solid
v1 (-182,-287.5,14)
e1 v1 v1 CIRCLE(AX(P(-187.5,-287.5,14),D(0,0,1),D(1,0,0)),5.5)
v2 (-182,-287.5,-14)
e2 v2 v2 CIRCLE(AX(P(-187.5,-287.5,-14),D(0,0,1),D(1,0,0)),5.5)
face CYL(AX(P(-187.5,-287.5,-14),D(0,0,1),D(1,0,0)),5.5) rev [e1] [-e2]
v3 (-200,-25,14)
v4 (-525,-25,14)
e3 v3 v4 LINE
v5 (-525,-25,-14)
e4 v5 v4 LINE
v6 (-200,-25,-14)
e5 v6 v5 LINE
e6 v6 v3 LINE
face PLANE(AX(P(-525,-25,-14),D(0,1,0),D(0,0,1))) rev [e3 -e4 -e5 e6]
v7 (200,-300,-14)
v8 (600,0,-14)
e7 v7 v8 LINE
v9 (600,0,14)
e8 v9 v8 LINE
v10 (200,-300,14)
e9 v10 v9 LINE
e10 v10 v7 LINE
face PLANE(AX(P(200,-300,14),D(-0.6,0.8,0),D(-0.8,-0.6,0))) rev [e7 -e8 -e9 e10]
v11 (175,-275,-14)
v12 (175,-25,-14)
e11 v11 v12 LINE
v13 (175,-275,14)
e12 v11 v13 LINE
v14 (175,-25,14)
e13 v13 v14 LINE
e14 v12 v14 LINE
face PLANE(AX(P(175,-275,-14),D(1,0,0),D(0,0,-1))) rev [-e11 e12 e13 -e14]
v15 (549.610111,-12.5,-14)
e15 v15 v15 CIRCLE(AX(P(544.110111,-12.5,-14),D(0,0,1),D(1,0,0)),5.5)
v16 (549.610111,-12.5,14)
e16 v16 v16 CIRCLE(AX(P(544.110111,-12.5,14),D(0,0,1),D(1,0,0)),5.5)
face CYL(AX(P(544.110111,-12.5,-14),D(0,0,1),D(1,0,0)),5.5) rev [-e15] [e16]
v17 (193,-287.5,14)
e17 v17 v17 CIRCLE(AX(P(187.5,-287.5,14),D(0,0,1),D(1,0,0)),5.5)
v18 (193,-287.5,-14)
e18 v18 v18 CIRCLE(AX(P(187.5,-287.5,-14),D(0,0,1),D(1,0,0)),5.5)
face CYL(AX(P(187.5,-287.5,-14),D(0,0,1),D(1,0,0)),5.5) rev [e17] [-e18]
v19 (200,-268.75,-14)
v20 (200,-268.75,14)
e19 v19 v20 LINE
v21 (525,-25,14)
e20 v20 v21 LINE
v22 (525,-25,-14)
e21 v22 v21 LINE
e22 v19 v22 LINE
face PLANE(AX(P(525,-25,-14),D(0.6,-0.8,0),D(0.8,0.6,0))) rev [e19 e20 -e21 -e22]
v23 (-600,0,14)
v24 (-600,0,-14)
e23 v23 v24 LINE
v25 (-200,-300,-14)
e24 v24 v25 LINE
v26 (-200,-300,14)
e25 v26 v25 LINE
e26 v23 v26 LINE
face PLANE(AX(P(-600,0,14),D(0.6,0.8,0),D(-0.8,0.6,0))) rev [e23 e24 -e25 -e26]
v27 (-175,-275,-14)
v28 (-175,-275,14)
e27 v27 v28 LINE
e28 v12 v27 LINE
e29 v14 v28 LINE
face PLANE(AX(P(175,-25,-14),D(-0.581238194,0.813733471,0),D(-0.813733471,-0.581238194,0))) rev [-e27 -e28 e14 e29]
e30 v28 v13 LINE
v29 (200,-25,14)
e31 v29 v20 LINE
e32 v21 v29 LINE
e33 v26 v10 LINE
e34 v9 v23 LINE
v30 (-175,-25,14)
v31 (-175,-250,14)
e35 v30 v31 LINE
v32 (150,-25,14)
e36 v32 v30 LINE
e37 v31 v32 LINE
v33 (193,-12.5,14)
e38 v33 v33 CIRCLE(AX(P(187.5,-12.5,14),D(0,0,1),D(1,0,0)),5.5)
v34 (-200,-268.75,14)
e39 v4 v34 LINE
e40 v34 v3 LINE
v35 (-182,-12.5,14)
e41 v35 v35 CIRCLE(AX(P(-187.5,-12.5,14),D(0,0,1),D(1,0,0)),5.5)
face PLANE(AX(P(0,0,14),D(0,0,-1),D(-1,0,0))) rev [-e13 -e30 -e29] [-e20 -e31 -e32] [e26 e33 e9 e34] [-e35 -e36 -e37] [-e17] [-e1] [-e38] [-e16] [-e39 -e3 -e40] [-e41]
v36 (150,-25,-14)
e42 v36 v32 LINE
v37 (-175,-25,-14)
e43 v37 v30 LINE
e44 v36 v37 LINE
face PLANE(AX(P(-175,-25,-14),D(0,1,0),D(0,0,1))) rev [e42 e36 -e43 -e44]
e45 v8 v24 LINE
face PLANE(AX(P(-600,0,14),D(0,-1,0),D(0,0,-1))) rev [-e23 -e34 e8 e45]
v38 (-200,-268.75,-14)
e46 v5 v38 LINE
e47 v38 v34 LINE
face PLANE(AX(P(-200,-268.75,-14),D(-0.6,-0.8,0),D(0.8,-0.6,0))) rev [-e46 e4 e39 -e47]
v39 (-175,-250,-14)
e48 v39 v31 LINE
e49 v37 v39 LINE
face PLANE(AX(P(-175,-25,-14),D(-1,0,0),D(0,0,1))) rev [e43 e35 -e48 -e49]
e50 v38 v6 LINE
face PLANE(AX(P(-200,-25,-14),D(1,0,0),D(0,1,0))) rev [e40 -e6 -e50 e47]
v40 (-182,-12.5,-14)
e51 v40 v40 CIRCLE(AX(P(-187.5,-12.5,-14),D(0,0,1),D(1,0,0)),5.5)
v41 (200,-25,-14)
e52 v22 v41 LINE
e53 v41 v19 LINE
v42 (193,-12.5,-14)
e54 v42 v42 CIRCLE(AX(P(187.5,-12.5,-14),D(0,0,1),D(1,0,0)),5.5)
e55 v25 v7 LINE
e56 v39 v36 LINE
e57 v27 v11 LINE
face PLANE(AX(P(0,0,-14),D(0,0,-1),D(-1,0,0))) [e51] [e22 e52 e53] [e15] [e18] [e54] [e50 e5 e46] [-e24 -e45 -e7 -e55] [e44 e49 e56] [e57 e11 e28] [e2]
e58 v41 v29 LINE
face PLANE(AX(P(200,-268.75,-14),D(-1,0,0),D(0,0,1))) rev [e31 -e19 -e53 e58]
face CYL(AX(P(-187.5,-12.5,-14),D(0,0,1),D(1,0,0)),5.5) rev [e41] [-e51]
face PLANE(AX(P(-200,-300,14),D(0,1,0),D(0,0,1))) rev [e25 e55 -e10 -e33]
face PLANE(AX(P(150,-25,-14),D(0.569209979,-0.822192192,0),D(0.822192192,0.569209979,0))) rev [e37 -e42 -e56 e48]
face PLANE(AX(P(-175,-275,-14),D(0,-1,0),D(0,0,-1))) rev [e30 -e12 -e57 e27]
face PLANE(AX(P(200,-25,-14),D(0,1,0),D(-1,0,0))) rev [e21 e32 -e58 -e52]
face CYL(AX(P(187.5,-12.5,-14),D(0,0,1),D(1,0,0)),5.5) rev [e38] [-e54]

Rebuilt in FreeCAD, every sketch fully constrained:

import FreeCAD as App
import Part
import Sketcher
from FreeCAD import Vector
Q = App.Units.Quantity


def add_polygon(sketch, points):
    """Adds a closed chain of lines whose ends are joined by coincident constraints."""
    first, n = sketch.GeometryCount, len(points)
    for a, b in zip(points, points[1:] + points[:1]):
        sketch.addGeometry(Part.LineSegment(App.Vector(*a, 0), App.Vector(*b, 0)), False)
    for i in range(n):
        sketch.addConstraint(Sketcher.Constraint("Coincident", first + i, 2, first + (i + 1) % n, 1))

doc = App.newDocument("Part")
body = doc.addObject("PartDesign::Body", "Body")

# Sketch on XY plane
sketch1 = body.newObject("Sketcher::SketchObject", "Sketch")
sketch1.AttachmentSupport = (doc.getObject("XY_Plane"), [""])
sketch1.MapMode = "FlatFace"
add_polygon(sketch1, [(600, 0), (-600, 0), (-200, -300), (200, -300)])  # lines 0-3
sketch1.addConstraint(Sketcher.Constraint("Horizontal", 0))
sketch1.addConstraint(Sketcher.Constraint("Horizontal", 2))
sketch1.addConstraint(Sketcher.Constraint("Symmetric", 0, 2, 3, 2, -1, 1))
sketch1.addConstraint(Sketcher.Constraint("Equal", 1, 3))
sketch1.addConstraint(Sketcher.Constraint("DistanceX", 0, 2, 0, 1, Q("1200 mm")))
sketch1.addConstraint(Sketcher.Constraint("DistanceX", 2, 1, 2, 2, Q("400 mm")))
sketch1.addConstraint(Sketcher.Constraint("Distance", 1, Q("500 mm")))
pad1 = body.newObject("PartDesign::Pad", "Pad")
pad1.Profile = sketch1
pad1.Length = 28
pad1.Midplane = True

# Sketch on XY plane
sketch2 = body.newObject("Sketcher::SketchObject", "Sketch001")
sketch2.AttachmentSupport = (doc.getObject("XY_Plane"), [""])
sketch2.MapMode = "FlatFace"
sketch2.AttachmentOffset = App.Placement(Vector(0, 0, 14), App.Rotation())
add_polygon(sketch2, [(-175, -275), (175, -275), (175, -25)])  # lines 0-2
add_polygon(sketch2, [(-175, -25), (-175, -250), (150, -25)])  # lines 3-5
sketch2.addConstraint(Sketcher.Constraint("Horizontal", 0))
sketch2.addConstraint(Sketcher.Constraint("Vertical", 1))
sketch2.addConstraint(Sketcher.Constraint("Vertical", 3))
sketch2.addConstraint(Sketcher.Constraint("Horizontal", 5))
sketch2.addConstraint(Sketcher.Constraint("Symmetric", 1, 2, 5, 2, -2))
sketch2.addConstraint(Sketcher.Constraint("Vertical", 2, 2, 3, 2))
sketch2.addConstraint(Sketcher.Constraint("DistanceX", 0, 1, 0, 2, Q("350 mm")))
sketch2.addConstraint(Sketcher.Constraint("DistanceX", 5, 2, 5, 1, Q("325 mm")))
sketch2.addConstraint(Sketcher.Constraint("DistanceY", 1, 1, 1, 2, Q("250 mm")))
sketch2.addConstraint(Sketcher.Constraint("DistanceY", 3, 2, 3, 1, Q("225 mm")))
sketch2.addConstraint(Sketcher.Constraint("DistanceY", 0, 2, -1, 1, Q("275 mm")))
pocket1 = body.newObject("PartDesign::Pocket", "Pocket")
pocket1.Profile = sketch2
pocket1.Length = 28

# Sketch on XY plane
sketch3 = body.newObject("Sketcher::SketchObject", "Sketch002")
sketch3.AttachmentSupport = (doc.getObject("XY_Plane"), [""])
sketch3.MapMode = "FlatFace"
sketch3.AttachmentOffset = App.Placement(Vector(0, 0, 14), App.Rotation())
add_polygon(sketch3, [(-200, -25), (-525, -25), (-200, -269)])  # lines 0-2
sketch3.addConstraint(Sketcher.Constraint("Horizontal", 0))
sketch3.addConstraint(Sketcher.Constraint("Vertical", 2))
sketch3.addConstraint(Sketcher.Constraint("DistanceX", 0, 2, 0, 1, Q("325 mm")))
sketch3.addConstraint(Sketcher.Constraint("DistanceX", 0, 2, -1, 1, Q("525 mm")))
sketch3.addConstraint(Sketcher.Constraint("DistanceY", 0, 2, -1, 1, Q("25 mm")))
sketch3.addConstraint(Sketcher.Constraint("DistanceY", 2, 1, 2, 2, Q("243.75 mm")))
pocket2 = body.newObject("PartDesign::Pocket", "Pocket001")
pocket2.Profile = sketch3
pocket2.Length = 28

# Sketch on XY plane
sketch4 = body.newObject("Sketcher::SketchObject", "Sketch003")
sketch4.AttachmentSupport = (doc.getObject("XY_Plane"), [""])
sketch4.MapMode = "FlatFace"
sketch4.AttachmentOffset = App.Placement(Vector(0, 0, 14), App.Rotation())
add_polygon(sketch4, [(525, -25), (200, -25), (200, -269)])  # lines 0-2
sketch4.addConstraint(Sketcher.Constraint("Horizontal", 0))
sketch4.addConstraint(Sketcher.Constraint("Vertical", 1))
sketch4.addConstraint(Sketcher.Constraint("DistanceX", 0, 2, 0, 1, Q("325 mm")))
sketch4.addConstraint(Sketcher.Constraint("DistanceX", -1, 1, 0, 2, Q("200 mm")))
sketch4.addConstraint(Sketcher.Constraint("DistanceY", 0, 2, -1, 1, Q("25 mm")))
sketch4.addConstraint(Sketcher.Constraint("DistanceY", 1, 2, 1, 1, Q("243.75 mm")))
pocket3 = body.newObject("PartDesign::Pocket", "Pocket002")
pocket3.Profile = sketch4
pocket3.Length = 28

# Sketch on XY plane
sketch5 = body.newObject("Sketcher::SketchObject", "Sketch004")
sketch5.AttachmentSupport = (doc.getObject("XY_Plane"), [""])
sketch5.MapMode = "FlatFace"
sketch5.AttachmentOffset = App.Placement(Vector(0, 0, 14), App.Rotation())
sketch5.addGeometry(Part.Circle(Vector(-188, -12, 0), Vector(0, 0, 1), 6), False)
sketch5.addGeometry(Part.Circle(Vector(-188, -288, 0), Vector(0, 0, 1), 6), False)
sketch5.addGeometry(Part.Circle(Vector(188, -288, 0), Vector(0, 0, 1), 6), False)
sketch5.addGeometry(Part.Circle(Vector(188, -12, 0), Vector(0, 0, 1), 6), False)
sketch5.addGeometry(Part.Circle(Vector(544, -12, 0), Vector(0, 0, 1), 6), False)
sketch5.addConstraint(Sketcher.Constraint("Equal", 0, 1))
sketch5.addConstraint(Sketcher.Constraint("Equal", 1, 2))
sketch5.addConstraint(Sketcher.Constraint("Equal", 2, 3))
sketch5.addConstraint(Sketcher.Constraint("Equal", 3, 4))
sketch5.addConstraint(Sketcher.Constraint("Symmetric", 1, 3, 2, 3, -2))
sketch5.addConstraint(Sketcher.Constraint("Symmetric", 0, 3, 3, 3, -2))
sketch5.addConstraint(Sketcher.Constraint("Horizontal", 3, 3, 4, 3))
sketch5.addConstraint(Sketcher.Constraint("Vertical", 0, 3, 1, 3))
sketch5.addConstraint(Sketcher.Constraint("Diameter", 0, Q("11 mm")))
sketch5.addConstraint(Sketcher.Constraint("DistanceY", 1, 3, 0, 3, Q("275 mm")))
sketch5.addConstraint(Sketcher.Constraint("DistanceX", 1, 3, 2, 3, Q("375 mm")))
sketch5.addConstraint(Sketcher.Constraint("DistanceY", 0, 3, -1, 1, Q("12.5 mm")))
sketch5.addConstraint(Sketcher.Constraint("DistanceX", -1, 1, 4, 3, Q("544.110111 mm")))
pocket4 = body.newObject("PartDesign::Pocket", "Pocket003")
pocket4.Profile = sketch5
pocket4.Length = 28

doc.recompute()
